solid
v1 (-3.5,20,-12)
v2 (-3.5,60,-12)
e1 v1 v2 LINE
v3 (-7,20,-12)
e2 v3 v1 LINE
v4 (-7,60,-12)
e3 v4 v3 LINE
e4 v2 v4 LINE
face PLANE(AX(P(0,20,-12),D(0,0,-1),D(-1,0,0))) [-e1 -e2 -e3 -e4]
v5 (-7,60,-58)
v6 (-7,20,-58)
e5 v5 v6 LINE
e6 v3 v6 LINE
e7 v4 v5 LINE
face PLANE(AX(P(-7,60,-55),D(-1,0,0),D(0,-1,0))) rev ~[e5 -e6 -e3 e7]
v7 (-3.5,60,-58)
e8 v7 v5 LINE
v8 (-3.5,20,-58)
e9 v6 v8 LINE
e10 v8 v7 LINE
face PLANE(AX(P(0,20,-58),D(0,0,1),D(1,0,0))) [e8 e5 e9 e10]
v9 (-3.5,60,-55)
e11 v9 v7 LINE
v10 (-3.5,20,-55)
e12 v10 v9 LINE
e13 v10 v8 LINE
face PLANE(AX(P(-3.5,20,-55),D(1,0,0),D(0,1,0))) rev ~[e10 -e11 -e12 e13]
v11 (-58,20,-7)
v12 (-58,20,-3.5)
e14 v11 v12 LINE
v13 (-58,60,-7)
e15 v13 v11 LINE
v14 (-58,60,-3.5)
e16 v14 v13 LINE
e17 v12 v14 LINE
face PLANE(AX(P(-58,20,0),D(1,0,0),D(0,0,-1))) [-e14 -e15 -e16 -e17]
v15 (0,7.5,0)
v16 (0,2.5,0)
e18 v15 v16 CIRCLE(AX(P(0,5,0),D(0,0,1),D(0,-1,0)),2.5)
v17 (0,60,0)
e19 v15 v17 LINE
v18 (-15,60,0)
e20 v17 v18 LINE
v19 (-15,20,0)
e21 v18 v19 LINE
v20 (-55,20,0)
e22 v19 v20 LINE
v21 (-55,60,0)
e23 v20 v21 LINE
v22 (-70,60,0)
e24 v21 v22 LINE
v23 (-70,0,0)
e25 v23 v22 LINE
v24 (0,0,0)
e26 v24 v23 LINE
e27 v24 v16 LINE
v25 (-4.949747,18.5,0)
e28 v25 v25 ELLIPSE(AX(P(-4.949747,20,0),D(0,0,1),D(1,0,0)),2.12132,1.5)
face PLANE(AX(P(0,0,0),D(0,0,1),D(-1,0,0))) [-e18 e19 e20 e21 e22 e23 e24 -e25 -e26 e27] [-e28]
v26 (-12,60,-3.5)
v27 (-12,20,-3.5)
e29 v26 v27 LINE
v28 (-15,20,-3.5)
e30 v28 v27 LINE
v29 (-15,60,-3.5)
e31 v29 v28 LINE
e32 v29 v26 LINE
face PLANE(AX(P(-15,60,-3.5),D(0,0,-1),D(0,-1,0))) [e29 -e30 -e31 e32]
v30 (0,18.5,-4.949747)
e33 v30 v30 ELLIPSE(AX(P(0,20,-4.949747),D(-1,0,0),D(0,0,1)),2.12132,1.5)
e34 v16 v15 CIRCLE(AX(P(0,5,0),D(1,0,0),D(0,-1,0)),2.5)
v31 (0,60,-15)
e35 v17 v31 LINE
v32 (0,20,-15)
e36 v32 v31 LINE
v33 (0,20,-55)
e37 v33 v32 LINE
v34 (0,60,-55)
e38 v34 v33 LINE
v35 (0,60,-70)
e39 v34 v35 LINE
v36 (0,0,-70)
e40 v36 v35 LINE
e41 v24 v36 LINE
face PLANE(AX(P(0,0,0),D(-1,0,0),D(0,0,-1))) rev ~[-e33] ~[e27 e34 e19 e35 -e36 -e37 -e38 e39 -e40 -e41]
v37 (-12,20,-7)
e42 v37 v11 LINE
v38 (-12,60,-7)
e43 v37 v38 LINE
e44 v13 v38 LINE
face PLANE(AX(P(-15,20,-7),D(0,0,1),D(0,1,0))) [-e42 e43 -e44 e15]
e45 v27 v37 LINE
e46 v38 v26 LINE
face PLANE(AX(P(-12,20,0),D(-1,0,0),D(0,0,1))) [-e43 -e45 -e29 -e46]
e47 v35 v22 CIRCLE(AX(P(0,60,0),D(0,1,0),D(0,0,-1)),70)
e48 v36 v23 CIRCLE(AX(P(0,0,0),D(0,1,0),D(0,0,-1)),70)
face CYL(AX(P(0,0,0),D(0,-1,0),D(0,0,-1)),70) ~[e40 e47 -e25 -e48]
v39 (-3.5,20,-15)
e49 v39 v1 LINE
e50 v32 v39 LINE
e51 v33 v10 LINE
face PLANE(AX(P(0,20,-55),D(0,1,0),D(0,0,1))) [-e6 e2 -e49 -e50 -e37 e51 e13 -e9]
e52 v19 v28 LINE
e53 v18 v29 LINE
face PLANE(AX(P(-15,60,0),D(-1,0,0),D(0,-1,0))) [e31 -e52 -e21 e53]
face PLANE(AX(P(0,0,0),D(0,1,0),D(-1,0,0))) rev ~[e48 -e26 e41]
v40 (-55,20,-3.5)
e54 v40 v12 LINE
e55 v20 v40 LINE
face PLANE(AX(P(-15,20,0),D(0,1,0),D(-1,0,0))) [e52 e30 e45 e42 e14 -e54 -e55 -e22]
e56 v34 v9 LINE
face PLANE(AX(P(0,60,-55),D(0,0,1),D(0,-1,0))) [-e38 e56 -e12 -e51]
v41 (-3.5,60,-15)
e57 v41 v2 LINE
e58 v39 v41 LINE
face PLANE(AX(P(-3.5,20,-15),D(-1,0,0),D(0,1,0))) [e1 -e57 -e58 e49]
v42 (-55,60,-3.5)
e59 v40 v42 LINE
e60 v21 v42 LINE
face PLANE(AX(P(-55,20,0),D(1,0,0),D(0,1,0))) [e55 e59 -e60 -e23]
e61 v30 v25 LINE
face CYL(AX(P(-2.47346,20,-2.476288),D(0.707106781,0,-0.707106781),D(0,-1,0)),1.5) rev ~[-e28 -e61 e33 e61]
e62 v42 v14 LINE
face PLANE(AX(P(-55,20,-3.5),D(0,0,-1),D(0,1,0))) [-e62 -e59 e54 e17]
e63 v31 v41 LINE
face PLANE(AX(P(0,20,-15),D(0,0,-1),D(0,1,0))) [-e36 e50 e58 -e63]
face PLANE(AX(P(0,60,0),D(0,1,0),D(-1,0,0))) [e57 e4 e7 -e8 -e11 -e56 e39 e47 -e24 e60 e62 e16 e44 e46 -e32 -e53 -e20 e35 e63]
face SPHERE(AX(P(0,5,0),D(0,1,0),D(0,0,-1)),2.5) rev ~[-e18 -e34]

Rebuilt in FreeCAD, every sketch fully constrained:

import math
import FreeCAD as App
import Part
import Sketcher
from FreeCAD import Vector
Q = App.Units.Quantity


def add_polygon(sketch, points):
    """Adds a closed chain of lines whose ends are joined by coincident constraints."""
    first, n = sketch.GeometryCount, len(points)
    for a, b in zip(points, points[1:] + points[:1]):
        sketch.addGeometry(Part.LineSegment(App.Vector(*a, 0), App.Vector(*b, 0)), False)
    for i in range(n):
        sketch.addConstraint(Sketcher.Constraint("Coincident", first + i, 2, first + (i + 1) % n, 1))

doc = App.newDocument("Part")
body = doc.addObject("PartDesign::Body", "Body")

# Sketch on XZ plane
sketch1 = body.newObject("Sketcher::SketchObject", "Sketch")
sketch1.AttachmentSupport = (doc.getObject("XZ_Plane"), [""])
sketch1.MapMode = "FlatFace"
sketch1.addGeometry([
    Part.LineSegment(Vector(-70, 0, 0), Vector(0, 0, 0)),
    Part.LineSegment(Vector(0, 0, 0), Vector(0, -70, 0)),
    Part.ArcOfCircle(Part.Circle(Vector(0, 0, 0), Vector(0, 0, 1), 70), math.radians(180), math.radians(270)),
], False)
sketch1.addConstraint([
    Sketcher.Constraint("Coincident", 0, 2, 1, 1),
    Sketcher.Constraint("Coincident", 1, 2, 2, 2),
    Sketcher.Constraint("Coincident", 2, 1, 0, 1),
    Sketcher.Constraint("Horizontal", 0),
    Sketcher.Constraint("Vertical", 1),
    Sketcher.Constraint("Coincident", 2, 3, -1, 1),
    Sketcher.Constraint("Coincident", 0, 2, -1, 1),
    Sketcher.Constraint("Radius", 2, Q("70 mm")),
])
pad1 = body.newObject("PartDesign::Pad", "Pad")
pad1.Profile = sketch1
pad1.Length = 60
pad1.Reversed = True

# Sketch on YZ plane
sketch2 = body.newObject("Sketcher::SketchObject", "Sketch001")
sketch2.AttachmentSupport = (doc.getObject("YZ_Plane"), [""])
sketch2.MapMode = "FlatFace"
add_polygon(sketch2, [(60, -55), (60, -15), (20, -15), (20, -55)])  # lines 0-3
sketch2.addConstraint([
    Sketcher.Constraint("Vertical", 0),
    Sketcher.Constraint("Horizontal", 1),
    Sketcher.Constraint("Vertical", 2),
    Sketcher.Constraint("Horizontal", 3),
    Sketcher.Constraint("Equal", 3, 0),
    Sketcher.Constraint("DistanceX", 1, 2, 1, 1, Q("40 mm")),
    Sketcher.Constraint("DistanceY", 0, 2, -1, 1, Q("15 mm")),
    Sketcher.Constraint("DistanceX", -1, 1, 0, 2, Q("60 mm")),
])
pocket1 = body.newObject("PartDesign::Pocket", "Pocket")
pocket1.Profile = sketch2
pocket1.Length = 7

# Sketch on XY plane
sketch3 = body.newObject("Sketcher::SketchObject", "Sketch002")
sketch3.AttachmentSupport = (doc.getObject("XY_Plane"), [""])
sketch3.MapMode = "FlatFace"
add_polygon(sketch3, [(-15, 60), (-55, 60), (-55, 20), (-15, 20)])  # lines 0-3
sketch3.addConstraint([
    Sketcher.Constraint("Horizontal", 0),
    Sketcher.Constraint("Vertical", 1),
    Sketcher.Constraint("Horizontal", 2),
    Sketcher.Constraint("Vertical", 3),
    Sketcher.Constraint("Equal", 2, 1),
    Sketcher.Constraint("DistanceX", 0, 2, 0, 1, Q("40 mm")),
    Sketcher.Constraint("DistanceX", 2, 2, -1, 1, Q("15 mm")),
    Sketcher.Constraint("DistanceY", -1, 1, 0, 2, Q("60 mm")),
])
pocket2 = body.newObject("PartDesign::Pocket", "Pocket001")
pocket2.Profile = sketch3
pocket2.Length = 7

# Sketch on XY plane
sketch4 = body.newObject("Sketcher::SketchObject", "Sketch003")
sketch4.AttachmentSupport = (doc.getObject("XY_Plane"), [""])
sketch4.MapMode = "FlatFace"
sketch4.AttachmentOffset = App.Placement(Vector(0, 0, -55), App.Rotation())
add_polygon(sketch4, [(-3.5, 20), (-3.5, 60), (-7, 60), (-7, 20)])  # lines 0-3
sketch4.addConstraint([
    Sketcher.Constraint("Vertical", 0),
    Sketcher.Constraint("Horizontal", 1),
    Sketcher.Constraint("Vertical", 2),
    Sketcher.Constraint("Horizontal", 3),
    Sketcher.Constraint("DistanceX", 1, 2, 1, 1, Q("3.5 mm")),
    Sketcher.Constraint("DistanceX", 0, 2, -1, 1, Q("3.5 mm")),
    Sketcher.Constraint("DistanceY", 0, 1, 0, 2, Q("40 mm")),
    Sketcher.Constraint("DistanceY", -1, 1, 0, 2, Q("60 mm")),
])
pocket3 = body.newObject("PartDesign::Pocket", "Pocket002")
pocket3.Profile = sketch4
pocket3.Length = 3

# Sketch on XY plane
sketch5 = body.newObject("Sketcher::SketchObject", "Sketch004")
sketch5.AttachmentSupport = (doc.getObject("XY_Plane"), [""])
sketch5.MapMode = "FlatFace"
sketch5.AttachmentOffset = App.Placement(Vector(0, 0, -15), App.Rotation())
add_polygon(sketch5, [(-7, 60), (-3.5, 60), (-3.5, 20), (-7, 20)])  # lines 0-3
sketch5.addConstraint([
    Sketcher.Constraint("Horizontal", 0),
    Sketcher.Constraint("Vertical", 1),
    Sketcher.Constraint("Horizontal", 2),
    Sketcher.Constraint("Vertical", 3),
    Sketcher.Constraint("DistanceX", 0, 1, 0, 2, Q("3.5 mm")),
    Sketcher.Constraint("DistanceY", -1, 1, 0, 2, Q("60 mm")),
    Sketcher.Constraint("DistanceX", 0, 2, -1, 1, Q("3.5 mm")),
    Sketcher.Constraint("DistanceY", 1, 2, 1, 1, Q("40 mm")),
])
pocket4 = body.newObject("PartDesign::Pocket", "Pocket003")
pocket4.Profile = sketch5
pocket4.Length = 3
pocket4.Reversed = True

# Sketch on YZ plane
sketch6 = body.newObject("Sketcher::SketchObject", "Sketch005")
sketch6.AttachmentSupport = (doc.getObject("YZ_Plane"), [""])
sketch6.MapMode = "FlatFace"
sketch6.AttachmentOffset = App.Placement(Vector(0, 0, -15), App.Rotation())
add_polygon(sketch6, [(60, -3.5), (60, -7), (20, -7), (20, -3.5)])  # lines 0-3
sketch6.addConstraint([
    Sketcher.Constraint("Vertical", 0),
    Sketcher.Constraint("Horizontal", 1),
    Sketcher.Constraint("Vertical", 2),
    Sketcher.Constraint("Horizontal", 3),
    Sketcher.Constraint("DistanceY", 0, 2, 0, 1, Q("3.5 mm")),
    Sketcher.Constraint("DistanceY", 2, 2, -1, 1, Q("3.5 mm")),
    Sketcher.Constraint("DistanceX", 1, 2, 1, 1, Q("40 mm")),
    Sketcher.Constraint("DistanceX", -1, 1, 0, 2, Q("60 mm")),
])
pocket5 = body.newObject("PartDesign::Pocket", "Pocket004")
pocket5.Profile = sketch6
pocket5.Length = 3
pocket5.Reversed = True

# Sketch on YZ plane
sketch7 = body.newObject("Sketcher::SketchObject", "Sketch006")
sketch7.AttachmentSupport = (doc.getObject("YZ_Plane"), [""])
sketch7.MapMode = "FlatFace"
sketch7.AttachmentOffset = App.Placement(Vector(0, 0, -55), App.Rotation())
add_polygon(sketch7, [(60, -7), (60, -3.5), (20, -3.5), (20, -7)])  # lines 0-3
sketch7.addConstraint([
    Sketcher.Constraint("Vertical", 0),
    Sketcher.Constraint("Horizontal", 1),
    Sketcher.Constraint("Vertical", 2),
    Sketcher.Constraint("Horizontal", 3),
    Sketcher.Constraint("DistanceY", 0, 1, 0, 2, Q("3.5 mm")),
    Sketcher.Constraint("DistanceY", 0, 2, -1, 1, Q("3.5 mm")),
    Sketcher.Constraint("DistanceX", 1, 2, 1, 1, Q("40 mm")),
    Sketcher.Constraint("DistanceX", -1, 1, 0, 2, Q("60 mm")),
])
pocket6 = body.newObject("PartDesign::Pocket", "Pocket005")
pocket6.Profile = sketch7
pocket6.Length = 3

# Sketch on YZ plane
sketch8 = body.newObject("Sketcher::SketchObject", "Sketch007")
sketch8.AttachmentSupport = (doc.getObject("YZ_Plane"), [""])
sketch8.MapMode = "FlatFace"
sketch8.addGeometry([
    Part.LineSegment(Vector(7.5, 0, 0), Vector(2.5, 0, 0)),
    Part.ArcOfCircle(Part.Circle(Vector(5, 0, 0), Vector(0, 0, 1), 2.5), math.radians(180), math.radians(360)),
], False)
sketch8.addConstraint([
    Sketcher.Constraint("Coincident", 0, 1, 1, 2),
    Sketcher.Constraint("Coincident", 1, 1, 0, 2),
    Sketcher.Constraint("Horizontal", 0),
    Sketcher.Constraint("PointOnObject", 1, 3, -1),
    Sketcher.Constraint("PointOnObject", 0, 1, -1),
    Sketcher.Constraint("Radius", 1, Q("2.5 mm")),
    Sketcher.Constraint("DistanceX", -1, 1, 1, 3, Q("5 mm")),
])
groove = body.newObject("PartDesign::Groove", "Groove")
groove.Profile = sketch8
groove.ReferenceAxis = (sketch8, ["H_Axis"])
groove.Angle = 360

# Sketch on an angled plane
sketch9 = body.newObject("Sketcher::SketchObject", "Sketch008")
sketch9.Placement = App.Placement(Vector(0, 60, 0), App.Rotation(Vector(0, -1, 0), Vector(-0.707106781, 0, -0.707106781), Vector(0.707106781, 0, -0.707106781), "ZXY"))
sketch9.addGeometry(Part.Circle(Vector(40, 3.5, 0), Vector(0, 0, 1), 1.5), False)
sketch9.addConstraint([
    Sketcher.Constraint("Diameter", 0, Q("3 mm")),
    Sketcher.Constraint("DistanceY", -1, 1, 0, 3, Q("3.5 mm")),
    Sketcher.Constraint("DistanceX", -1, 1, 0, 3, Q("40 mm")),
])
pocket7 = body.newObject("PartDesign::Pocket", "Pocket006")
pocket7.Profile = sketch9
pocket7.Length = 10
pocket7.Midplane = True

doc.recompute()
